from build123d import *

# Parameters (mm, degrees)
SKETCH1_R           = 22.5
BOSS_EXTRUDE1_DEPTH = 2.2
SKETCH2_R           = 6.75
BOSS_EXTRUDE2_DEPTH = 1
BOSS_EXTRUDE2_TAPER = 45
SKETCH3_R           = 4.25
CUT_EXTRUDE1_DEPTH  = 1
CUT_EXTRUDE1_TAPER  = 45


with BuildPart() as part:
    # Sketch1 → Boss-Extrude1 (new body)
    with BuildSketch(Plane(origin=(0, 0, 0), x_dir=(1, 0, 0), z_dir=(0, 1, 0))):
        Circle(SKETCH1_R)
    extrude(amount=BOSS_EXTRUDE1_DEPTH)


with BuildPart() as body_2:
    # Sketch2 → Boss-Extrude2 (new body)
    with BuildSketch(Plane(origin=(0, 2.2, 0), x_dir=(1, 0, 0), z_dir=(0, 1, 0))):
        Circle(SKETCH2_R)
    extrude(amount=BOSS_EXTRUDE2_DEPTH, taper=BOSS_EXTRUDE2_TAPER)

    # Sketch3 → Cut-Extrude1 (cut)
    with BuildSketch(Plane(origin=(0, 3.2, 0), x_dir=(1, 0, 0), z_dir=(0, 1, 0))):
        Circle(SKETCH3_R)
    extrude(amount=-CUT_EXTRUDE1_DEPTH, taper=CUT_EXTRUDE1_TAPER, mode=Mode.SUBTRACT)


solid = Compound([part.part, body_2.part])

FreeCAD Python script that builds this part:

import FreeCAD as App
import Part
import Sketcher
Q = App.Units.Quantity

doc = App.newDocument("Part")
body = doc.addObject("PartDesign::Body", "Body")

sketch1 = doc.addObject("Sketcher::SketchObject", "Sketch")
body.addObject(sketch1)
sketch1.AttachmentSupport = (doc.XZ_Plane, [""])
sketch1.MapMode = "FlatFace"
sketch1.addGeometry(Part.Circle(App.Vector(0, 0, 0), App.Vector(0, 0, 1), 22), False)
sketch1.addConstraint(Sketcher.Constraint("Coincident", 0, 3, -1, 1))
sketch1.addConstraint(Sketcher.Constraint("Diameter", 0, Q("45 mm")))
pad1 = doc.addObject("PartDesign::Pad", "Pad")
body.addObject(pad1)
pad1.Profile = sketch1
pad1.Length = 2.2
pad1.Reversed = True
body2 = doc.addObject("PartDesign::Body", "Body001")

sketch2 = doc.addObject("Sketcher::SketchObject", "Sketch001")
body2.addObject(sketch2)
sketch2.AttachmentSupport = (doc.getObject("XZ_Plane001"), [""])
sketch2.MapMode = "FlatFace"
sketch2.AttachmentOffset = App.Placement(App.Vector(0, 0, -2.2), App.Rotation())
sketch2.addGeometry(Part.Circle(App.Vector(0, 0, 0), App.Vector(0, 0, 1), 7), False)
sketch2.addConstraint(Sketcher.Constraint("Coincident", 0, 3, -1, 1))
sketch2.addConstraint(Sketcher.Constraint("Diameter", 0, Q("13.5 mm")))
pad2 = doc.addObject("PartDesign::Pad", "Pad001")
body2.addObject(pad2)
pad2.Profile = sketch2
pad2.Length = 1
pad2.Reversed = True
pad2.TaperAngle = -45

sketch3 = doc.addObject("Sketcher::SketchObject", "Sketch002")
body2.addObject(sketch3)
sketch3.AttachmentSupport = (doc.getObject("XZ_Plane001"), [""])
sketch3.MapMode = "FlatFace"
sketch3.AttachmentOffset = App.Placement(App.Vector(0, 0, -3.2), App.Rotation())
sketch3.addGeometry(Part.Circle(App.Vector(0, 0, 0), App.Vector(0, 0, 1), 4.2), False)
sketch3.addConstraint(Sketcher.Constraint("Coincident", 0, 3, -1, 1))
sketch3.addConstraint(Sketcher.Constraint("Diameter", 0, Q("8.5 mm")))
pocket1 = doc.addObject("PartDesign::Pocket", "Pocket")
body2.addObject(pocket1)
pocket1.Profile = sketch3
pocket1.Length = 1
pocket1.Reversed = True
pocket1.TaperAngle = -45

doc.recompute()
